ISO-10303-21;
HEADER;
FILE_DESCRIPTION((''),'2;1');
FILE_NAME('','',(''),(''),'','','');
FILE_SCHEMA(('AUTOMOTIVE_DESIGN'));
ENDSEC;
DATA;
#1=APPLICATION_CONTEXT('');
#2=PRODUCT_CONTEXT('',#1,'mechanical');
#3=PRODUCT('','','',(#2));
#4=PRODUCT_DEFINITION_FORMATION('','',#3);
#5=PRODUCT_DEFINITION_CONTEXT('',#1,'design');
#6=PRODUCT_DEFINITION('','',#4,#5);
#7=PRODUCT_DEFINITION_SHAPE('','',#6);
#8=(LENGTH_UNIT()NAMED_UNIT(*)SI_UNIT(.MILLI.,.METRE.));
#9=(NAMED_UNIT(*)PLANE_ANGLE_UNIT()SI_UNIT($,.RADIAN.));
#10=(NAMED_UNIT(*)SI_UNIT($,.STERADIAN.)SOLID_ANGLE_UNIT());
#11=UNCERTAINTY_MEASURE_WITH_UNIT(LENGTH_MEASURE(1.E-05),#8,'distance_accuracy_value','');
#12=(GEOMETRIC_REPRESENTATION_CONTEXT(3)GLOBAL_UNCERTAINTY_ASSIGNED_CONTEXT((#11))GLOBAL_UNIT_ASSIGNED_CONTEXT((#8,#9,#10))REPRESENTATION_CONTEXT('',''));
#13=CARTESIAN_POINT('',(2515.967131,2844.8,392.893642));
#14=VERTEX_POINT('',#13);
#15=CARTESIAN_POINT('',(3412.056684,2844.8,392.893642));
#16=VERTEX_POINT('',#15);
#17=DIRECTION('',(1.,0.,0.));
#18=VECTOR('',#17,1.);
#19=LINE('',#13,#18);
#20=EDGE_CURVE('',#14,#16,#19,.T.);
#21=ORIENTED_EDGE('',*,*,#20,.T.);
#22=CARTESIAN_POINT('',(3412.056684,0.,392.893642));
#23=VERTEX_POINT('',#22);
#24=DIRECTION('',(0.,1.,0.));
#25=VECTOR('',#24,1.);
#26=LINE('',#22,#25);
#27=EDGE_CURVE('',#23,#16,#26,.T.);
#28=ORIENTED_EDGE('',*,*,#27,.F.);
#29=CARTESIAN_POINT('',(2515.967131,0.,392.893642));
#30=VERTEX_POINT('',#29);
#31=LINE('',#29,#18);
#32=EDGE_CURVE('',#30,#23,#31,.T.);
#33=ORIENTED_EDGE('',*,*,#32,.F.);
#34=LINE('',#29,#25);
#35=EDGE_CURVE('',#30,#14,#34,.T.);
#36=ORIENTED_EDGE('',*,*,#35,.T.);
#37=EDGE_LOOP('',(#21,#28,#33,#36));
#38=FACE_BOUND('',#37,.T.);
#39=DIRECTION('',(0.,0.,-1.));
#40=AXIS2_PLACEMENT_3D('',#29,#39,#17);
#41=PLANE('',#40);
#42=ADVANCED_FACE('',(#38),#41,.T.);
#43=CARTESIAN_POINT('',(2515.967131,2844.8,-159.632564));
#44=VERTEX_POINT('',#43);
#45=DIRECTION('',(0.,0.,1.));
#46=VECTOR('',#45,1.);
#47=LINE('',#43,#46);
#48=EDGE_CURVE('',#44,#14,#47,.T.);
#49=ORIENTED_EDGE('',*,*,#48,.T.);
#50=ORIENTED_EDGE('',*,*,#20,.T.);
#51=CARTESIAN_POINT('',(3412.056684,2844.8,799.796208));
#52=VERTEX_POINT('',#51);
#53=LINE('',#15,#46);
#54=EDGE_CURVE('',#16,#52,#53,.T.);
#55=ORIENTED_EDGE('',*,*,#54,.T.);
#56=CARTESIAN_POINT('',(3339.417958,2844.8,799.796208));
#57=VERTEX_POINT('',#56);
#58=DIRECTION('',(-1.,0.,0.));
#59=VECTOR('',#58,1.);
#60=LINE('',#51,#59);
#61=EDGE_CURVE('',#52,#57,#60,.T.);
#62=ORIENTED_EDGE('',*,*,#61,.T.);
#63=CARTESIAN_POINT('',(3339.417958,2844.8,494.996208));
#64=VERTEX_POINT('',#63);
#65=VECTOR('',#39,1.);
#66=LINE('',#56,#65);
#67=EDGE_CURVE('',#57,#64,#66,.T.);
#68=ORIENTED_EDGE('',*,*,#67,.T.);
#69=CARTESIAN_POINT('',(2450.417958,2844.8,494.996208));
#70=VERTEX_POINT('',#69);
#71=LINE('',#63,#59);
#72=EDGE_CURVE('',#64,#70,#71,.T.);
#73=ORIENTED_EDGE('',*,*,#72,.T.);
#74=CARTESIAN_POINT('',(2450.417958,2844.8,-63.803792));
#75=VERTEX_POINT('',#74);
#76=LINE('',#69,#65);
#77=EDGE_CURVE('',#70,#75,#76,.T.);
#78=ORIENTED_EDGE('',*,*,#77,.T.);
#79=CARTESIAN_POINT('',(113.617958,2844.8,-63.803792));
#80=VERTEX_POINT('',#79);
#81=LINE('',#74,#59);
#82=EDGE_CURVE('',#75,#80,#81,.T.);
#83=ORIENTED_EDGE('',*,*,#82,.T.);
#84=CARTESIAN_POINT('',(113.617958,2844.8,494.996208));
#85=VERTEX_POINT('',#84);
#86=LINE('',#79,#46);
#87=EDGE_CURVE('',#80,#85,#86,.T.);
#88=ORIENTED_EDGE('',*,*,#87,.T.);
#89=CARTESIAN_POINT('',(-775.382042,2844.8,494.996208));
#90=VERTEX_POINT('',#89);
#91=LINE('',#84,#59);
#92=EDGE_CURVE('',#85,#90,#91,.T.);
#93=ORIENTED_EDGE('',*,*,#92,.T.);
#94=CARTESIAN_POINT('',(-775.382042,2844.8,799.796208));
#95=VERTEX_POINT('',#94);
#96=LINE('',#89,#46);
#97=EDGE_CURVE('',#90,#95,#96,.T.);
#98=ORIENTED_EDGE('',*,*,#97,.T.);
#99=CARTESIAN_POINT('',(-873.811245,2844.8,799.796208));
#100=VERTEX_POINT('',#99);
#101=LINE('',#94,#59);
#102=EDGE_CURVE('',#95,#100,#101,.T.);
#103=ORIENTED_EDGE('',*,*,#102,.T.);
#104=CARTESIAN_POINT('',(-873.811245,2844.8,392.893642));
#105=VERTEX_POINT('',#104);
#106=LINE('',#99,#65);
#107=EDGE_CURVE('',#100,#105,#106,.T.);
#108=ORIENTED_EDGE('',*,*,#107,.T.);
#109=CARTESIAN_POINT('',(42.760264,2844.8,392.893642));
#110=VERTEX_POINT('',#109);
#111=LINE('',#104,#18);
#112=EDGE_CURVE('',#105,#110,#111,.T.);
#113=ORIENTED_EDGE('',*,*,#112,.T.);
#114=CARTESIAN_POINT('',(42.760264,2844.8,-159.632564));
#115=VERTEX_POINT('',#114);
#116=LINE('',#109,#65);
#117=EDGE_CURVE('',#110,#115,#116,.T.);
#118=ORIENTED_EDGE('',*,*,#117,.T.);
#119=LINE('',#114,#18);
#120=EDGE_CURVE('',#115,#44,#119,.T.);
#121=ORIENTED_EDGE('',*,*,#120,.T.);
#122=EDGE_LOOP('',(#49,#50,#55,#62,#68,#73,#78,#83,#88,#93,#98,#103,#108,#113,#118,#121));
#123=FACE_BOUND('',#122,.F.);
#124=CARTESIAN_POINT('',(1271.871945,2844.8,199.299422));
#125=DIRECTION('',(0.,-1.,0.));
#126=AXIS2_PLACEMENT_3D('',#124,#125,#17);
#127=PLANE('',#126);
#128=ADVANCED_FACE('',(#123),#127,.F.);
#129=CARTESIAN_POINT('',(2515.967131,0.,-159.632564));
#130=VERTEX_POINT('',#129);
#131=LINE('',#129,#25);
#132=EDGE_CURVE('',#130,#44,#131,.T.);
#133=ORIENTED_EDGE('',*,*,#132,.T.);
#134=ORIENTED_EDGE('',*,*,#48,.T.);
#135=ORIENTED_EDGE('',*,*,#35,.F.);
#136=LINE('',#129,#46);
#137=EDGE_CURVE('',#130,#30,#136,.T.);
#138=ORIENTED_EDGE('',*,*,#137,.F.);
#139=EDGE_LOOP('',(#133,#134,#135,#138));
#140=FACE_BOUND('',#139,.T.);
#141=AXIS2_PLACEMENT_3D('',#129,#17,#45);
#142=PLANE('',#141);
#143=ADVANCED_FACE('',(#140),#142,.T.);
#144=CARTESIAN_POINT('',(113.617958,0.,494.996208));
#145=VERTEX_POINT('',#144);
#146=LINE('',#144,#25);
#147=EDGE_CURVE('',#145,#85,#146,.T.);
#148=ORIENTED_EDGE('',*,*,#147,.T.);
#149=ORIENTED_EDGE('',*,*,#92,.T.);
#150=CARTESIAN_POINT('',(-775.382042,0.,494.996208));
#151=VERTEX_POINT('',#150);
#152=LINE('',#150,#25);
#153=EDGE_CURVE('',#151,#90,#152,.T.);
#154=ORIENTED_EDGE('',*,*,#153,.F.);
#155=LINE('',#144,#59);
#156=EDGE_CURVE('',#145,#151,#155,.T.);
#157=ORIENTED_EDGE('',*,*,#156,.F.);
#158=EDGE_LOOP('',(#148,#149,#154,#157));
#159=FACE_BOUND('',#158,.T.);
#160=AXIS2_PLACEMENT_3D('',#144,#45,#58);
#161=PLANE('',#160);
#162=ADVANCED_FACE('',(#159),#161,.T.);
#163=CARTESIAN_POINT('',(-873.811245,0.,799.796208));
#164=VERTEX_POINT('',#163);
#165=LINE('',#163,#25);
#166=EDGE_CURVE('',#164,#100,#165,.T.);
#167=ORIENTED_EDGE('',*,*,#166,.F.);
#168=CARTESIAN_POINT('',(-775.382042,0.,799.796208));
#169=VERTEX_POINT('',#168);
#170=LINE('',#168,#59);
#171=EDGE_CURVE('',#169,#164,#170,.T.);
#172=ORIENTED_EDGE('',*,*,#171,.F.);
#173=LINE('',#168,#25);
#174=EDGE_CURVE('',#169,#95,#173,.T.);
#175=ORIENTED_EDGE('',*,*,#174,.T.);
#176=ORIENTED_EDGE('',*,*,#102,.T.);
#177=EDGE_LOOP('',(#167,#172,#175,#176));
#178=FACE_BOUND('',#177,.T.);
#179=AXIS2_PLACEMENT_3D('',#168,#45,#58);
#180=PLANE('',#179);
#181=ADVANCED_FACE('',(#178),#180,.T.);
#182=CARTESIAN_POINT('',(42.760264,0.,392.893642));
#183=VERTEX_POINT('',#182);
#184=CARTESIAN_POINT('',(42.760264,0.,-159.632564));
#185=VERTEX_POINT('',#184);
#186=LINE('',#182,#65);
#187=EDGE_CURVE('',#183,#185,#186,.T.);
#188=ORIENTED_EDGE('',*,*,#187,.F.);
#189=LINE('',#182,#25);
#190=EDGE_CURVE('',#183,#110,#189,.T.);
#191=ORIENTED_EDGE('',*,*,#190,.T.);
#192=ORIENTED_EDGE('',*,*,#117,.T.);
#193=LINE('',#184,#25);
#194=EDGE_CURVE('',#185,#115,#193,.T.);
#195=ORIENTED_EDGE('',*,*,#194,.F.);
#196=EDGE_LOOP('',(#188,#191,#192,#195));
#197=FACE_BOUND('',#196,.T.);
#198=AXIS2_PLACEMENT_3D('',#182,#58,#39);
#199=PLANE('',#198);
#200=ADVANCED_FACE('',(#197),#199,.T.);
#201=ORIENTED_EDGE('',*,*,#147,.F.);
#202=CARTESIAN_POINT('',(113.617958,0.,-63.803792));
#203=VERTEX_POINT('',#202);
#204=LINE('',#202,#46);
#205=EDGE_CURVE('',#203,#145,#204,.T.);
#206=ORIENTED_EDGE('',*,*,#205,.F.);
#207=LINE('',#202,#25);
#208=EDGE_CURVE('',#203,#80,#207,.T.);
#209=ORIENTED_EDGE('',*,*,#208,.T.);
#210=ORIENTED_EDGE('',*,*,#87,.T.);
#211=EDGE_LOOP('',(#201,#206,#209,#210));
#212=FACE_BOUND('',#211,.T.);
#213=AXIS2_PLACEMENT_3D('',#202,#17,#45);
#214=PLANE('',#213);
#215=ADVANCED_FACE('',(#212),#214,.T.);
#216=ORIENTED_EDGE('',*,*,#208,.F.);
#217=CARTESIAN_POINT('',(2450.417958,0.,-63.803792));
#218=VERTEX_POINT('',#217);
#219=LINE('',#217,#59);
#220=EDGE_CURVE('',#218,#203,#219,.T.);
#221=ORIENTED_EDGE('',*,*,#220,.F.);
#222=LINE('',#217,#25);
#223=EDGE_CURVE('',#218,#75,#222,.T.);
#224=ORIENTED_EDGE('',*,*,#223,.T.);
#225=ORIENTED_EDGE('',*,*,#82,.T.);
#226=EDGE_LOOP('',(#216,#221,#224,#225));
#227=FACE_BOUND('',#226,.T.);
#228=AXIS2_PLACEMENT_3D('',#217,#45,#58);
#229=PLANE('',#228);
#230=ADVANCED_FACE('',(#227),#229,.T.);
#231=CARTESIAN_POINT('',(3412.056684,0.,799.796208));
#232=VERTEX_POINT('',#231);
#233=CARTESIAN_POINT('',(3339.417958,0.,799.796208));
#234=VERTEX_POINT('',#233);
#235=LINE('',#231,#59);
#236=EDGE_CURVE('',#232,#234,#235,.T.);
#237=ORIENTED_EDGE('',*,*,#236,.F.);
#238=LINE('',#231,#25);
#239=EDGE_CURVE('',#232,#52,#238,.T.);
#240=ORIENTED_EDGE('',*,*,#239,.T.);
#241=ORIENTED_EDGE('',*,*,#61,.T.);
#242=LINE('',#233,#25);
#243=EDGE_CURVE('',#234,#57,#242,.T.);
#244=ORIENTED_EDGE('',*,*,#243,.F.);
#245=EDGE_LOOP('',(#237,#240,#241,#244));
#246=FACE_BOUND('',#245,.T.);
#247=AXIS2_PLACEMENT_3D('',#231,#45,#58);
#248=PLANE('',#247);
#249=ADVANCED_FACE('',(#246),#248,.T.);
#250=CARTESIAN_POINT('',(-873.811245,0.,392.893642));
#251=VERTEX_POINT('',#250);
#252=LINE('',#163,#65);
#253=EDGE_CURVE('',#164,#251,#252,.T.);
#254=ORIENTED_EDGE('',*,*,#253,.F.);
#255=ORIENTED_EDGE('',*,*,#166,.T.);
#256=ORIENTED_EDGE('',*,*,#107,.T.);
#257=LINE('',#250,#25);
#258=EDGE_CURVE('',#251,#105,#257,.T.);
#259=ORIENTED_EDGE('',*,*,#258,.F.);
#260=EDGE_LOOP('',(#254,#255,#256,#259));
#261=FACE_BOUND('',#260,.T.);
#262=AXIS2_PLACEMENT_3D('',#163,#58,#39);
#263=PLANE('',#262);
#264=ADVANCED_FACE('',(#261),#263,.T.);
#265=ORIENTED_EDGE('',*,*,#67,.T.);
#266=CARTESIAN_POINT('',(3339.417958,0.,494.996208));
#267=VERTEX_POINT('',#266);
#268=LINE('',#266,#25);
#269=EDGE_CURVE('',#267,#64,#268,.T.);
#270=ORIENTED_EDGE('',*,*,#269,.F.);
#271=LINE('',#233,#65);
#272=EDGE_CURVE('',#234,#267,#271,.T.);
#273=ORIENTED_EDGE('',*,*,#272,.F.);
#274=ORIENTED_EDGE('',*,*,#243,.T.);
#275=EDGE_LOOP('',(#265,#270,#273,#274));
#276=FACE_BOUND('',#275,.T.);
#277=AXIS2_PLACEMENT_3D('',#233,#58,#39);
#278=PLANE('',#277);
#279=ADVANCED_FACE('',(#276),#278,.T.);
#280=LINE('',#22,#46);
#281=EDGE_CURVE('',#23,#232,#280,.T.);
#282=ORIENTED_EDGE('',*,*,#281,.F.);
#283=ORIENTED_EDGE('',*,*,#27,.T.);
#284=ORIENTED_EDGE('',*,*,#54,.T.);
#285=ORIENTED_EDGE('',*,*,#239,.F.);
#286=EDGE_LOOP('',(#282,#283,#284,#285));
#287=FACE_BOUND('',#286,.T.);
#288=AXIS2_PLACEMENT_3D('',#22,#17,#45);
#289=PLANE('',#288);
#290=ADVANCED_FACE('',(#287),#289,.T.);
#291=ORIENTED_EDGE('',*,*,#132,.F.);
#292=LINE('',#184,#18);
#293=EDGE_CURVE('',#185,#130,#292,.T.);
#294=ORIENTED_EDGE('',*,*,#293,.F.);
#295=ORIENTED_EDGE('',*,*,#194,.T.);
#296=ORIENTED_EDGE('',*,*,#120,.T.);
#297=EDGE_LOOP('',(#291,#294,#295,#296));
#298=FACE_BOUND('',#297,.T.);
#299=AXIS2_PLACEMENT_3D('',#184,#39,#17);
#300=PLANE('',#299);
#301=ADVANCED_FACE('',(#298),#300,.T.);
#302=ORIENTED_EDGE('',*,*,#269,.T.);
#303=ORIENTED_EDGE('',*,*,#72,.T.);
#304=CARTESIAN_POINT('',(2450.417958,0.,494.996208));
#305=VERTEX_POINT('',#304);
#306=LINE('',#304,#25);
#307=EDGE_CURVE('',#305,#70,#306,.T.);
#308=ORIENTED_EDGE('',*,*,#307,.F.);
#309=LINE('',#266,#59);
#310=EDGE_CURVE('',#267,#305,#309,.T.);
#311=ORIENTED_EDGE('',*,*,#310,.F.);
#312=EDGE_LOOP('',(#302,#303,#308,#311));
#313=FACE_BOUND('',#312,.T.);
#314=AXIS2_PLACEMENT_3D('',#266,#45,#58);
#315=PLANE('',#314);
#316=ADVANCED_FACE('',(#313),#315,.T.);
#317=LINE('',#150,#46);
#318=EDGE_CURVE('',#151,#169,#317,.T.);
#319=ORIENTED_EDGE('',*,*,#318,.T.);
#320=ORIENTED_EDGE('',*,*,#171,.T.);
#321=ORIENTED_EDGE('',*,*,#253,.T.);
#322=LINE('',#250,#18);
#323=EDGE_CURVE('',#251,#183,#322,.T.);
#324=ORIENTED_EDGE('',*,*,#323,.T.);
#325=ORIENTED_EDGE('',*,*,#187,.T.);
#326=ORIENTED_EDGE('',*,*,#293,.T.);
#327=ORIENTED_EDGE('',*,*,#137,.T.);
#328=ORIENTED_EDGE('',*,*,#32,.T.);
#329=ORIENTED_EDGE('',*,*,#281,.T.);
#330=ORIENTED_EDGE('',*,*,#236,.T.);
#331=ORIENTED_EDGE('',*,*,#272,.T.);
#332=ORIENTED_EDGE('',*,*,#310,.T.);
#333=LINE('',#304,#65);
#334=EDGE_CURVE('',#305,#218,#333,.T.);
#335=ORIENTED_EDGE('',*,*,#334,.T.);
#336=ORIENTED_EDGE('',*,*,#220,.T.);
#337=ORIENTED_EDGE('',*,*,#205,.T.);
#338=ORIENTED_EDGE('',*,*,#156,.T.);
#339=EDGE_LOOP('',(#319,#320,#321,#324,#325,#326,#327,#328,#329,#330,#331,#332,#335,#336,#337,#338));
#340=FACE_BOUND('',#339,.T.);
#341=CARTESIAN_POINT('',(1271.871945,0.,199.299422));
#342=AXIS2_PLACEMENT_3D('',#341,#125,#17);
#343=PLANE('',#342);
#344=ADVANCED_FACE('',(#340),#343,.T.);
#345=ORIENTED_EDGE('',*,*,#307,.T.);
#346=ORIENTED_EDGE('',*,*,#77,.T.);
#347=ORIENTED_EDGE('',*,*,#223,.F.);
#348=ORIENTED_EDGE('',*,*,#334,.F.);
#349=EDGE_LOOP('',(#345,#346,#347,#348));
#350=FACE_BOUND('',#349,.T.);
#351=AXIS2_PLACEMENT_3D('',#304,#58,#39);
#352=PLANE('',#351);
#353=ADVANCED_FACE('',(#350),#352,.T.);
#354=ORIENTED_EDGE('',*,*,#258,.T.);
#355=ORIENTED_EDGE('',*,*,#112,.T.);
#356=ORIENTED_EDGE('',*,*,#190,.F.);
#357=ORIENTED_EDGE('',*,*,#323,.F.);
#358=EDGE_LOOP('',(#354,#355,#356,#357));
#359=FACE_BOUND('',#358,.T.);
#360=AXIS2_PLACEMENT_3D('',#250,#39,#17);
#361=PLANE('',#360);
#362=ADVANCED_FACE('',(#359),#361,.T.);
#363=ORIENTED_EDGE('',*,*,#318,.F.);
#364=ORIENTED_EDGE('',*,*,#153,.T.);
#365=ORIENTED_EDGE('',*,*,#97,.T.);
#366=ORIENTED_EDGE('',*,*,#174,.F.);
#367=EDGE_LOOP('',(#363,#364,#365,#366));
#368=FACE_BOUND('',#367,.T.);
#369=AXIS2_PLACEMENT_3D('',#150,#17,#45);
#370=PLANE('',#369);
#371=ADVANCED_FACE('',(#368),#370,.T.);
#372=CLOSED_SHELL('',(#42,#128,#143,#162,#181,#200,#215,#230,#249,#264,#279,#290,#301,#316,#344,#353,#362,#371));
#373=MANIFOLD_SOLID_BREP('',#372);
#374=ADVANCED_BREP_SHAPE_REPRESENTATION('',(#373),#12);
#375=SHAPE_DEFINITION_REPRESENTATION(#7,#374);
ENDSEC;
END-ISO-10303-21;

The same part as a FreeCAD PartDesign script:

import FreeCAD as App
import Part
import Sketcher
from FreeCAD import Vector
Q = App.Units.Quantity


def add_polygon(sketch, points):
    """Adds a closed chain of lines whose ends are joined by coincident constraints."""
    first, n = sketch.GeometryCount, len(points)
    for a, b in zip(points, points[1:] + points[:1]):
        sketch.addGeometry(Part.LineSegment(App.Vector(*a, 0), App.Vector(*b, 0)), False)
    for i in range(n):
        sketch.addConstraint(Sketcher.Constraint("Coincident", first + i, 2, first + (i + 1) % n, 1))

doc = App.newDocument("Part")
body = doc.addObject("PartDesign::Body", "Body")

sketch1 = body.newObject("Sketcher::SketchObject", "Sketch")
sketch1.AttachmentSupport = (doc.getObject("XZ_Plane"), [""])
sketch1.MapMode = "FlatFace"
add_polygon(sketch1, [(2450, -64), (114, -64), (114, 495), (-775, 495), (-775, 800), (-874, 800), (-874, 393), (43, 393), (43, -160), (2516, -160), (2516, 393), (3412, 393), (3412, 800), (3339, 800), (3339, 495), (2450, 495)])
sketch1.addConstraint(Sketcher.Constraint("Horizontal", 0))
sketch1.addConstraint(Sketcher.Constraint("Vertical", 1))
sketch1.addConstraint(Sketcher.Constraint("Horizontal", 2))
sketch1.addConstraint(Sketcher.Constraint("Vertical", 3))
sketch1.addConstraint(Sketcher.Constraint("Horizontal", 4))
sketch1.addConstraint(Sketcher.Constraint("Vertical", 5))
sketch1.addConstraint(Sketcher.Constraint("Horizontal", 6))
sketch1.addConstraint(Sketcher.Constraint("Vertical", 7))
sketch1.addConstraint(Sketcher.Constraint("Horizontal", 8))
sketch1.addConstraint(Sketcher.Constraint("Vertical", 9))
sketch1.addConstraint(Sketcher.Constraint("Horizontal", 10))
sketch1.addConstraint(Sketcher.Constraint("Vertical", 11))
sketch1.addConstraint(Sketcher.Constraint("Horizontal", 12))
sketch1.addConstraint(Sketcher.Constraint("Vertical", 13))
sketch1.addConstraint(Sketcher.Constraint("Horizontal", 14))
sketch1.addConstraint(Sketcher.Constraint("Vertical", 15))
sketch1.addConstraint(Sketcher.Constraint("Horizontal", 6, 2, 9, 2))
sketch1.addConstraint(Sketcher.Constraint("Horizontal", 4, 2, 11, 2))
sketch1.addConstraint(Sketcher.Constraint("Horizontal", 2, 2, 13, 2))
sketch1.addConstraint(Sketcher.Constraint("Equal", 2, 14))
sketch1.addConstraint(Sketcher.Constraint("DistanceX", 0, 2, 0, 1, Q("92 in")))
sketch1.addConstraint(Sketcher.Constraint("DistanceX", 2, 2, 2, 1, Q("35 in")))
sketch1.addConstraint(Sketcher.Constraint("DistanceY", 1, 1, 1, 2, Q("22 in")))
sketch1.addConstraint(Sketcher.Constraint("DistanceY", 3, 1, 3, 2, Q("12 in")))
sketch1.addConstraint(Sketcher.Constraint("DistanceX", 6, 1, 6, 2, 916.571509))
sketch1.addConstraint(Sketcher.Constraint("DistanceX", 4, 2, 4, 1, 98.429203))
sketch1.addConstraint(Sketcher.Constraint("DistanceX", 8, 1, 8, 2, 2473.206867))
sketch1.addConstraint(Sketcher.Constraint("DistanceX", 10, 1, 10, 2, 896.089553))
sketch1.addConstraint(Sketcher.Constraint("DistanceY", 5, 2, 5, 1, 406.902566))
sketch1.addConstraint(Sketcher.Constraint("DistanceY", 7, 2, 7, 1, 552.526206))
sketch1.addConstraint(Sketcher.Constraint("DistanceX", -1, 1, 0, 2, 113.617958))
sketch1.addConstraint(Sketcher.Constraint("DistanceY", -1, 1, 1, 2, 494.996208))
pad1 = body.newObject("PartDesign::Pad", "Pad")
pad1.Profile = sketch1
pad1.Length = Q("112 in")
pad1.Reversed = True

doc.recompute()
